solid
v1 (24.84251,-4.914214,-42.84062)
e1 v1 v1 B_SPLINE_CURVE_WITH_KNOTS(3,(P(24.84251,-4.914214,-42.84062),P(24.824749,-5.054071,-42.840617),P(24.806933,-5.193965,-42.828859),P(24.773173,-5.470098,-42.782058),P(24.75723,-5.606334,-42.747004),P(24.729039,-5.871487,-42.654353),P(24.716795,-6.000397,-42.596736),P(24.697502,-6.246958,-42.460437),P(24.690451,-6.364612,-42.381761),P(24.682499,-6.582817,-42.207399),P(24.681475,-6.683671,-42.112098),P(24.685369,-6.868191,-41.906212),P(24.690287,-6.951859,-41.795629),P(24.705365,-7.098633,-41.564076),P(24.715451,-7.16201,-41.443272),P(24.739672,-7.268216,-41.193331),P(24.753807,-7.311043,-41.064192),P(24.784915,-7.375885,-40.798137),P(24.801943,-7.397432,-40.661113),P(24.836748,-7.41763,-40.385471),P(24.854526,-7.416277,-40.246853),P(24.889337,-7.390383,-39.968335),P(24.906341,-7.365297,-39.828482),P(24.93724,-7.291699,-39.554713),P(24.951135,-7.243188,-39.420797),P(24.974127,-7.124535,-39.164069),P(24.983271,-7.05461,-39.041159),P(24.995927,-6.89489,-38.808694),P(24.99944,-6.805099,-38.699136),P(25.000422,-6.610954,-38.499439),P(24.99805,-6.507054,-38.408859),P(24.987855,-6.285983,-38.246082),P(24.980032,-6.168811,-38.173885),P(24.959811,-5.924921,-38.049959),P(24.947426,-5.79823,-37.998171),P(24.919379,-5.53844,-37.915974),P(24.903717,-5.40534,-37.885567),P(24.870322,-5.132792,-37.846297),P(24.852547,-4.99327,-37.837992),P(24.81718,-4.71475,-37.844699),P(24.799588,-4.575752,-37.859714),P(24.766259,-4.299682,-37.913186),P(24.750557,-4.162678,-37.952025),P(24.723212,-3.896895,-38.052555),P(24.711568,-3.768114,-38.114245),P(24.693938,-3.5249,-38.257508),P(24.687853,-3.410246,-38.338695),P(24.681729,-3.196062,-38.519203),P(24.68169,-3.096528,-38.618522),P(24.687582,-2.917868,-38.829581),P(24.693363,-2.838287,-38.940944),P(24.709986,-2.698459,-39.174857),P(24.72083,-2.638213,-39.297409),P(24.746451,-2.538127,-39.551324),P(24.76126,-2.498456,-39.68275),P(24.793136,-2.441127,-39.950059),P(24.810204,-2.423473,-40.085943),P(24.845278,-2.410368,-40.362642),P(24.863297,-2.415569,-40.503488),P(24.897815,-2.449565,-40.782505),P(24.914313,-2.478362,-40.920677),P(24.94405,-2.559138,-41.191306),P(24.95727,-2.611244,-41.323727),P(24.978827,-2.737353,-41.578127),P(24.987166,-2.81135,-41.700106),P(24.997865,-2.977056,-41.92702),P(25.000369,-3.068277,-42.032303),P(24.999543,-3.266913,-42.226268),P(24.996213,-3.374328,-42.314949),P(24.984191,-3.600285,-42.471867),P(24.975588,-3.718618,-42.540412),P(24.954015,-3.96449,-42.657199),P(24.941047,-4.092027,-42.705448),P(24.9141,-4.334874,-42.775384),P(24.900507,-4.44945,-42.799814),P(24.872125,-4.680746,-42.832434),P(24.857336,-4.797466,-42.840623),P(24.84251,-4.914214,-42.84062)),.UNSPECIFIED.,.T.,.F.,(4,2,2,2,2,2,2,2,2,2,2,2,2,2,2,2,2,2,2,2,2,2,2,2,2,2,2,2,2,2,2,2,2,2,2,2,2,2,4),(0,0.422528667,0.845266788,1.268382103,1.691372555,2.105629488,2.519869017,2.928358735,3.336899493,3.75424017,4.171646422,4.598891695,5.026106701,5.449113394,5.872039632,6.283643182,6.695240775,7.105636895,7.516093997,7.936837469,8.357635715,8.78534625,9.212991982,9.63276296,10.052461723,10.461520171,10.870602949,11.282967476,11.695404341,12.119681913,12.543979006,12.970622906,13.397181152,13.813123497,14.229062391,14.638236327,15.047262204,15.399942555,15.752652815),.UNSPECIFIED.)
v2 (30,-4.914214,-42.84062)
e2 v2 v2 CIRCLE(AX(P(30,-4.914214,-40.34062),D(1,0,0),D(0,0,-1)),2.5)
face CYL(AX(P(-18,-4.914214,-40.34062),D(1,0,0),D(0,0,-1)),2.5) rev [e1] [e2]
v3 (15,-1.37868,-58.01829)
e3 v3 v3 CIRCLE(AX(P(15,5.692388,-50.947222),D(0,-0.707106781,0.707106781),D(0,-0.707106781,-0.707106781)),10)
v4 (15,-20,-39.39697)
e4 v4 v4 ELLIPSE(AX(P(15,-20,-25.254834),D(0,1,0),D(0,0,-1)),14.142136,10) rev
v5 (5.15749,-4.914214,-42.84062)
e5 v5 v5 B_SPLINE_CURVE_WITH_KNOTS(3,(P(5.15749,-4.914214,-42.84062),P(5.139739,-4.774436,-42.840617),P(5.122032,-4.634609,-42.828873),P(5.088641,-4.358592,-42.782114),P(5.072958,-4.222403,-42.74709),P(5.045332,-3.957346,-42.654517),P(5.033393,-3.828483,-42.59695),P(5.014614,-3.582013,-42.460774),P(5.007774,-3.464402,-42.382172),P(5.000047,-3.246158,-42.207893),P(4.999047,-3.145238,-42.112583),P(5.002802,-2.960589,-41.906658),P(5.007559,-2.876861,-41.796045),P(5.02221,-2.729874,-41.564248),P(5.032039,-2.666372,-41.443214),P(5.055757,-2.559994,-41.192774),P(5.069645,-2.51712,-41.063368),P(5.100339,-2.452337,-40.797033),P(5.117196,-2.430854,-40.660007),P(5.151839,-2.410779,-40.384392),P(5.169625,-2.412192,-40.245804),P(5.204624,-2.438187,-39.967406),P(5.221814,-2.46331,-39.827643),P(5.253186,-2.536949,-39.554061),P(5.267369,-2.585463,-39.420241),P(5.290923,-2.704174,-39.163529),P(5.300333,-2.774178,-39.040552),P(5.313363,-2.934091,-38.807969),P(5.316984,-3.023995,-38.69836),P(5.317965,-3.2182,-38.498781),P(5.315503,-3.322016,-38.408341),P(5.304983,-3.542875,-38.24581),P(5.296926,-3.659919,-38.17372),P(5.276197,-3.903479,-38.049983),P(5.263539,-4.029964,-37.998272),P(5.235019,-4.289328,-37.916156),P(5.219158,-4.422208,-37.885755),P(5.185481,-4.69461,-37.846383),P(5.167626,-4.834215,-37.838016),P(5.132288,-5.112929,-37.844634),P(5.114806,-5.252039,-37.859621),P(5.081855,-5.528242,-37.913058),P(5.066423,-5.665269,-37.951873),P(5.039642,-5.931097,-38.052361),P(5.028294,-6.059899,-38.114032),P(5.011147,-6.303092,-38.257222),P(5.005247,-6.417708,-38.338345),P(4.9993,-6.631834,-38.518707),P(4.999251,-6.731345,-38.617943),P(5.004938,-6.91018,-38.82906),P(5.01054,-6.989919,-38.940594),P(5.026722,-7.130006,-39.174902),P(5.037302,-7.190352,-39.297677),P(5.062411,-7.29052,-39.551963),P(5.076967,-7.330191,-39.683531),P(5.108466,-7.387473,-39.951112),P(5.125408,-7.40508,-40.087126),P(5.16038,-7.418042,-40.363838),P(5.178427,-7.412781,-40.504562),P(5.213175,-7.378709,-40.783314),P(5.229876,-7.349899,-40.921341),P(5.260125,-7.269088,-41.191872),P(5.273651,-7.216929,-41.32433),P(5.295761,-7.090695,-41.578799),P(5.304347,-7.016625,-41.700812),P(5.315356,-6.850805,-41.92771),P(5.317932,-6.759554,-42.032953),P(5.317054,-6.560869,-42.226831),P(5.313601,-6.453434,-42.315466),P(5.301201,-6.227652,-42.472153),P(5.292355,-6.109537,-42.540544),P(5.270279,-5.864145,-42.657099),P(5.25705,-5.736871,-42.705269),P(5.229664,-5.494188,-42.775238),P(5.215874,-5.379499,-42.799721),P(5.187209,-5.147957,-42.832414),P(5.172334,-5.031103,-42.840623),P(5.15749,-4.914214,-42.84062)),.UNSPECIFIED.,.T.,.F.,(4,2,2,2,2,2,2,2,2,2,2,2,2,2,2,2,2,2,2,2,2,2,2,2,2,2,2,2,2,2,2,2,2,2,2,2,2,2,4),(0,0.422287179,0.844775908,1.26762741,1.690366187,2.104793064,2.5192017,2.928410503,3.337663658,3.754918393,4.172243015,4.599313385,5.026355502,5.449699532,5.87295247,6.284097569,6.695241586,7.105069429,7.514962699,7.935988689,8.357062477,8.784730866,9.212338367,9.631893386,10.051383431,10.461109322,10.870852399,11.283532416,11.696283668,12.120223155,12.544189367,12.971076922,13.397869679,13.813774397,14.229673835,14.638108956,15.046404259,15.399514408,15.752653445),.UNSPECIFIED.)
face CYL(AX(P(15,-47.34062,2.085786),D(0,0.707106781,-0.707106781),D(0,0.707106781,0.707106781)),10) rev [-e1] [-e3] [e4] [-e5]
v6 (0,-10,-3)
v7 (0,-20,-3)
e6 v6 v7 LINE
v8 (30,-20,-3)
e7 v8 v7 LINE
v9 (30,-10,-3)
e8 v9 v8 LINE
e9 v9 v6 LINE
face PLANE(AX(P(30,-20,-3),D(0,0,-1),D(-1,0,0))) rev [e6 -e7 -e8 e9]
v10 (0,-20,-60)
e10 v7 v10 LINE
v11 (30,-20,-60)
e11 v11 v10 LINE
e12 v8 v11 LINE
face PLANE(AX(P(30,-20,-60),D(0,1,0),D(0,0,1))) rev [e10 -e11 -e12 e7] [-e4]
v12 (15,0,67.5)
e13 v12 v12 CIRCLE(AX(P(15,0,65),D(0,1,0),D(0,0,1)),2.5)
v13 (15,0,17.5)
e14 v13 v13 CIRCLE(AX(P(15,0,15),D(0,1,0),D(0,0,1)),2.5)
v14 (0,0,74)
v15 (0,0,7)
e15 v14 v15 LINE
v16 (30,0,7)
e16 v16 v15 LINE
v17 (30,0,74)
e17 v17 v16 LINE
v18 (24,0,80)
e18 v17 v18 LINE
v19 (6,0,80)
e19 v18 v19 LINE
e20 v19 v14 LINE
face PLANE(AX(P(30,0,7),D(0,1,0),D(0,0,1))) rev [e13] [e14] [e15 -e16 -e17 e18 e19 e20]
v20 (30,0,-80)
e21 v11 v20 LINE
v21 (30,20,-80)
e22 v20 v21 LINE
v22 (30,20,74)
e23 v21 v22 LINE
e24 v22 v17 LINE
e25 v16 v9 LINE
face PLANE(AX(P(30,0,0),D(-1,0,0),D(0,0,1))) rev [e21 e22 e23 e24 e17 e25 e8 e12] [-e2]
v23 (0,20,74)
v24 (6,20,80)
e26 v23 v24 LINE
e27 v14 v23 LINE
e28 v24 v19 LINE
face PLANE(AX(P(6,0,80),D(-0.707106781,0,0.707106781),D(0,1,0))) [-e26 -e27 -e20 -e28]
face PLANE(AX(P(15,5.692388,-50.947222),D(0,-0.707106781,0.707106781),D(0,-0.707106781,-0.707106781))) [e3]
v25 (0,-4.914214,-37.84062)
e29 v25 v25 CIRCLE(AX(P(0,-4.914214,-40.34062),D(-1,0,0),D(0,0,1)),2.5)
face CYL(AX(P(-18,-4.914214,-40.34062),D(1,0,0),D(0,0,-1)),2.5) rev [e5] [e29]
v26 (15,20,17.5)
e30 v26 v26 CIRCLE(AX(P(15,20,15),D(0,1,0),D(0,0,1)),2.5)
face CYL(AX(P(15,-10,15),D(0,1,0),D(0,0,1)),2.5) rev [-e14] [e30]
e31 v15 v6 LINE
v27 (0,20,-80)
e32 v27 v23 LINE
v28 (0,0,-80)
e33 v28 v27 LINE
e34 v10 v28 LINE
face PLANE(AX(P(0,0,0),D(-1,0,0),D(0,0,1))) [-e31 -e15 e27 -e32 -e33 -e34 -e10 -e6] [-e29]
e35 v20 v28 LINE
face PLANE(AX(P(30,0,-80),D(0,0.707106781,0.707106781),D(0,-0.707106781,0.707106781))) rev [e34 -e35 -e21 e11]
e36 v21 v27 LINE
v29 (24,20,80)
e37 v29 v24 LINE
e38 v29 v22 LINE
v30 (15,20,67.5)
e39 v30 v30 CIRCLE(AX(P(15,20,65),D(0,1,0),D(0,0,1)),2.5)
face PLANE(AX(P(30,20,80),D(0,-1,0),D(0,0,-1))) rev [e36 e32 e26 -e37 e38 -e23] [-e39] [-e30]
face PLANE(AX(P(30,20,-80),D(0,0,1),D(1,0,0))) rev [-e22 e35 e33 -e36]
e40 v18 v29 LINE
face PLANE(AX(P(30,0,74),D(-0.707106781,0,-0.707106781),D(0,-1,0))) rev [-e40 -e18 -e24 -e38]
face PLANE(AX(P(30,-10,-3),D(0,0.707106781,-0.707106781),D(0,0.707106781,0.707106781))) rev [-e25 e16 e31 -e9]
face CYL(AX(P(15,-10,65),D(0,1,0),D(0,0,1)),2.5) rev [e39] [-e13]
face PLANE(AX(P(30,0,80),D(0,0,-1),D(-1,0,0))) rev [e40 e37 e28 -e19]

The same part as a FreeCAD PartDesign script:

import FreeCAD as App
import Part
import Sketcher

V = App.Vector
Q = App.Units.Quantity


def edges_at(feature, points):
    """Names of the edges that pass closest to the given points."""
    edges = feature.Shape.Edges
    near = lambda p: min(range(len(edges)), key=lambda i: edges[i].distToShape(Part.Vertex(*p))[0])
    return sorted({f"Edge{near(p) + 1}" for p in points})


def add_polygon(sketch, points):
    """Adds a closed chain of lines whose ends are joined by coincident constraints."""
    first, n = sketch.GeometryCount, len(points)
    for a, b in zip(points, points[1:] + points[:1]):
        sketch.addGeometry(Part.LineSegment(App.Vector(*a, 0), App.Vector(*b, 0)), False)
    for i in range(n):
        sketch.addConstraint(Sketcher.Constraint("Coincident", first + i, 2, first + (i + 1) % n, 1))

doc = App.newDocument("Part")
body = doc.addObject("PartDesign::Body", "Body")

# Sketch on YZ plane
sketch1 = body.newObject("Sketcher::SketchObject", "Sketch")
sketch1.AttachmentSupport = (doc.getObject("YZ_Plane"), [""])
sketch1.MapMode = "FlatFace"
add_polygon(sketch1, [(20, -80), (20, 80), (0, 80), (0, 7), (-10, -3), (-20, -3), (-20, -60), (0, -80)])  # lines 0-7
sketch1.addConstraint([
    Sketcher.Constraint("Vertical", 0),
    Sketcher.Constraint("Horizontal", 1),
    Sketcher.Constraint("Vertical", 2),
    Sketcher.Constraint("Horizontal", 4),
    Sketcher.Constraint("Vertical", 5),
    Sketcher.Constraint("Horizontal", 7),
    Sketcher.Constraint("Symmetric", 1, 2, 6, 2, -1, 1),
    Sketcher.Constraint("PointOnObject", 1, 2, -2),
    Sketcher.Constraint("Perpendicular", 3, 6),
    Sketcher.Constraint("DistanceX", 1, 2, 1, 1, 20.0),
    Sketcher.Constraint("DistanceX", 4, 2, 4, 1, 10.0),
    Sketcher.Constraint("DistanceY", 0, 1, 0, 2, 160.0),
    Sketcher.Constraint("DistanceY", 2, 2, 2, 1, 73.0),
    Sketcher.Constraint("DistanceY", 5, 2, 5, 1, 57.0),
    Sketcher.Constraint("Angle", 3, Q("-135 deg")),
])
pad1 = body.newObject("PartDesign::Pad", "Pad")
pad1.Profile = sketch1
pad1.Length = 30

# Sketch on XZ plane
sketch2 = body.newObject("Sketcher::SketchObject", "Sketch001")
sketch2.AttachmentSupport = (doc.getObject("XZ_Plane"), [""])
sketch2.MapMode = "FlatFace"
sketch2.AttachmentOffset = App.Placement(V(0, 0, -20), App.Rotation())
sketch2.addGeometry([
    Part.Circle(V(15, 15, 0), V(0, 0, 1), 2.5),
    Part.Circle(V(15, 65, 0), V(0, 0, 1), 2.5),
], False)
sketch2.addConstraint([
    Sketcher.Constraint("Equal", 0, 1),
    Sketcher.Constraint("Vertical", 0, 3, 1, 3),
    Sketcher.Constraint("Diameter", 0, 5.0),
    Sketcher.Constraint("DistanceX", -1, 1, 0, 3, 15.0),
    Sketcher.Constraint("DistanceY", -1, 1, 0, 3, 15.0),
    Sketcher.Constraint("DistanceY", -1, 1, 1, 3, 65.0),
])
pocket1 = body.newObject("PartDesign::Pocket", "Pocket")
pocket1.Profile = sketch2
pocket1.Length = 30
pocket1.Reversed = True
doc.recompute()

chamfer = body.newObject("PartDesign::Chamfer", "Chamfer")
chamfer.Base = (pocket1, edges_at(pocket1, [(0, 10, 80), (30, 10, 80)]))
chamfer.Size = 6

# Sketch on an angled plane
sketch3 = body.newObject("Sketcher::SketchObject", "Sketch002")
sketch3.Placement = App.Placement(V(0, -3.5, 3.5), App.Rotation(V(1, 0, 0), V(0, 0.707106781, 0.707106781), V(0, -0.707106781, 0.707106781), "ZXY"))
sketch3.addGeometry(Part.Circle(V(15, -32, 0), V(0, 0, 1), 10), False)
sketch3.addConstraint([
    Sketcher.Constraint("Diameter", 0, 20.0),
    Sketcher.Constraint("DistanceX", -1, 1, 0, 3, 15.0),
    Sketcher.Constraint("DistanceY", 0, 3, -1, 1, 32.0),
])
pocket2 = body.newObject("PartDesign::Pocket", "Pocket001")
pocket2.Profile = sketch3
pocket2.Type = "TwoLengths"
pocket2.Length = 30
pocket2.Length2 = 30
pocket2.Reversed = True

# Sketch on an angled plane
sketch4 = body.newObject("Sketcher::SketchObject", "Sketch003")
sketch4.Placement = App.Placement(V(0, 17.713203, -17.713203), App.Rotation(V(1, 0, 0), V(0, 0.707106781, 0.707106781), V(0, -0.707106781, 0.707106781), "ZXY"))
sketch4.addGeometry(Part.Circle(V(15, -32, 0), V(0, 0, 1), 10), False)
sketch4.addConstraint([
    Sketcher.Constraint("Diameter", 0, 20.0),
    Sketcher.Constraint("DistanceX", -1, 1, 0, 3, 15.0),
    Sketcher.Constraint("DistanceY", 0, 3, -1, 1, 32.0),
])
pocket3 = body.newObject("PartDesign::Pocket", "Pocket002")
pocket3.Profile = sketch4
pocket3.Length = 15

# Sketch on YZ plane
sketch5 = body.newObject("Sketcher::SketchObject", "Sketch004")
sketch5.AttachmentSupport = (doc.getObject("YZ_Plane"), [""])
sketch5.MapMode = "FlatFace"
sketch5.AttachmentOffset = App.Placement(V(0, 0, 30), App.Rotation())
sketch5.addGeometry(Part.Circle(V(-4.914214, -40.34062, 0), V(0, 0, 1), 2.5), False)
sketch5.addConstraint([
    Sketcher.Constraint("Diameter", 0, 5.0),
    Sketcher.Constraint("DistanceY", 0, 3, -1, 1, 40.34062),
    Sketcher.Constraint("DistanceX", 0, 3, -1, 1, 4.914214),
])
pocket4 = body.newObject("PartDesign::Pocket", "Pocket003")
pocket4.Profile = sketch5
pocket4.Length = 48

doc.recompute()
